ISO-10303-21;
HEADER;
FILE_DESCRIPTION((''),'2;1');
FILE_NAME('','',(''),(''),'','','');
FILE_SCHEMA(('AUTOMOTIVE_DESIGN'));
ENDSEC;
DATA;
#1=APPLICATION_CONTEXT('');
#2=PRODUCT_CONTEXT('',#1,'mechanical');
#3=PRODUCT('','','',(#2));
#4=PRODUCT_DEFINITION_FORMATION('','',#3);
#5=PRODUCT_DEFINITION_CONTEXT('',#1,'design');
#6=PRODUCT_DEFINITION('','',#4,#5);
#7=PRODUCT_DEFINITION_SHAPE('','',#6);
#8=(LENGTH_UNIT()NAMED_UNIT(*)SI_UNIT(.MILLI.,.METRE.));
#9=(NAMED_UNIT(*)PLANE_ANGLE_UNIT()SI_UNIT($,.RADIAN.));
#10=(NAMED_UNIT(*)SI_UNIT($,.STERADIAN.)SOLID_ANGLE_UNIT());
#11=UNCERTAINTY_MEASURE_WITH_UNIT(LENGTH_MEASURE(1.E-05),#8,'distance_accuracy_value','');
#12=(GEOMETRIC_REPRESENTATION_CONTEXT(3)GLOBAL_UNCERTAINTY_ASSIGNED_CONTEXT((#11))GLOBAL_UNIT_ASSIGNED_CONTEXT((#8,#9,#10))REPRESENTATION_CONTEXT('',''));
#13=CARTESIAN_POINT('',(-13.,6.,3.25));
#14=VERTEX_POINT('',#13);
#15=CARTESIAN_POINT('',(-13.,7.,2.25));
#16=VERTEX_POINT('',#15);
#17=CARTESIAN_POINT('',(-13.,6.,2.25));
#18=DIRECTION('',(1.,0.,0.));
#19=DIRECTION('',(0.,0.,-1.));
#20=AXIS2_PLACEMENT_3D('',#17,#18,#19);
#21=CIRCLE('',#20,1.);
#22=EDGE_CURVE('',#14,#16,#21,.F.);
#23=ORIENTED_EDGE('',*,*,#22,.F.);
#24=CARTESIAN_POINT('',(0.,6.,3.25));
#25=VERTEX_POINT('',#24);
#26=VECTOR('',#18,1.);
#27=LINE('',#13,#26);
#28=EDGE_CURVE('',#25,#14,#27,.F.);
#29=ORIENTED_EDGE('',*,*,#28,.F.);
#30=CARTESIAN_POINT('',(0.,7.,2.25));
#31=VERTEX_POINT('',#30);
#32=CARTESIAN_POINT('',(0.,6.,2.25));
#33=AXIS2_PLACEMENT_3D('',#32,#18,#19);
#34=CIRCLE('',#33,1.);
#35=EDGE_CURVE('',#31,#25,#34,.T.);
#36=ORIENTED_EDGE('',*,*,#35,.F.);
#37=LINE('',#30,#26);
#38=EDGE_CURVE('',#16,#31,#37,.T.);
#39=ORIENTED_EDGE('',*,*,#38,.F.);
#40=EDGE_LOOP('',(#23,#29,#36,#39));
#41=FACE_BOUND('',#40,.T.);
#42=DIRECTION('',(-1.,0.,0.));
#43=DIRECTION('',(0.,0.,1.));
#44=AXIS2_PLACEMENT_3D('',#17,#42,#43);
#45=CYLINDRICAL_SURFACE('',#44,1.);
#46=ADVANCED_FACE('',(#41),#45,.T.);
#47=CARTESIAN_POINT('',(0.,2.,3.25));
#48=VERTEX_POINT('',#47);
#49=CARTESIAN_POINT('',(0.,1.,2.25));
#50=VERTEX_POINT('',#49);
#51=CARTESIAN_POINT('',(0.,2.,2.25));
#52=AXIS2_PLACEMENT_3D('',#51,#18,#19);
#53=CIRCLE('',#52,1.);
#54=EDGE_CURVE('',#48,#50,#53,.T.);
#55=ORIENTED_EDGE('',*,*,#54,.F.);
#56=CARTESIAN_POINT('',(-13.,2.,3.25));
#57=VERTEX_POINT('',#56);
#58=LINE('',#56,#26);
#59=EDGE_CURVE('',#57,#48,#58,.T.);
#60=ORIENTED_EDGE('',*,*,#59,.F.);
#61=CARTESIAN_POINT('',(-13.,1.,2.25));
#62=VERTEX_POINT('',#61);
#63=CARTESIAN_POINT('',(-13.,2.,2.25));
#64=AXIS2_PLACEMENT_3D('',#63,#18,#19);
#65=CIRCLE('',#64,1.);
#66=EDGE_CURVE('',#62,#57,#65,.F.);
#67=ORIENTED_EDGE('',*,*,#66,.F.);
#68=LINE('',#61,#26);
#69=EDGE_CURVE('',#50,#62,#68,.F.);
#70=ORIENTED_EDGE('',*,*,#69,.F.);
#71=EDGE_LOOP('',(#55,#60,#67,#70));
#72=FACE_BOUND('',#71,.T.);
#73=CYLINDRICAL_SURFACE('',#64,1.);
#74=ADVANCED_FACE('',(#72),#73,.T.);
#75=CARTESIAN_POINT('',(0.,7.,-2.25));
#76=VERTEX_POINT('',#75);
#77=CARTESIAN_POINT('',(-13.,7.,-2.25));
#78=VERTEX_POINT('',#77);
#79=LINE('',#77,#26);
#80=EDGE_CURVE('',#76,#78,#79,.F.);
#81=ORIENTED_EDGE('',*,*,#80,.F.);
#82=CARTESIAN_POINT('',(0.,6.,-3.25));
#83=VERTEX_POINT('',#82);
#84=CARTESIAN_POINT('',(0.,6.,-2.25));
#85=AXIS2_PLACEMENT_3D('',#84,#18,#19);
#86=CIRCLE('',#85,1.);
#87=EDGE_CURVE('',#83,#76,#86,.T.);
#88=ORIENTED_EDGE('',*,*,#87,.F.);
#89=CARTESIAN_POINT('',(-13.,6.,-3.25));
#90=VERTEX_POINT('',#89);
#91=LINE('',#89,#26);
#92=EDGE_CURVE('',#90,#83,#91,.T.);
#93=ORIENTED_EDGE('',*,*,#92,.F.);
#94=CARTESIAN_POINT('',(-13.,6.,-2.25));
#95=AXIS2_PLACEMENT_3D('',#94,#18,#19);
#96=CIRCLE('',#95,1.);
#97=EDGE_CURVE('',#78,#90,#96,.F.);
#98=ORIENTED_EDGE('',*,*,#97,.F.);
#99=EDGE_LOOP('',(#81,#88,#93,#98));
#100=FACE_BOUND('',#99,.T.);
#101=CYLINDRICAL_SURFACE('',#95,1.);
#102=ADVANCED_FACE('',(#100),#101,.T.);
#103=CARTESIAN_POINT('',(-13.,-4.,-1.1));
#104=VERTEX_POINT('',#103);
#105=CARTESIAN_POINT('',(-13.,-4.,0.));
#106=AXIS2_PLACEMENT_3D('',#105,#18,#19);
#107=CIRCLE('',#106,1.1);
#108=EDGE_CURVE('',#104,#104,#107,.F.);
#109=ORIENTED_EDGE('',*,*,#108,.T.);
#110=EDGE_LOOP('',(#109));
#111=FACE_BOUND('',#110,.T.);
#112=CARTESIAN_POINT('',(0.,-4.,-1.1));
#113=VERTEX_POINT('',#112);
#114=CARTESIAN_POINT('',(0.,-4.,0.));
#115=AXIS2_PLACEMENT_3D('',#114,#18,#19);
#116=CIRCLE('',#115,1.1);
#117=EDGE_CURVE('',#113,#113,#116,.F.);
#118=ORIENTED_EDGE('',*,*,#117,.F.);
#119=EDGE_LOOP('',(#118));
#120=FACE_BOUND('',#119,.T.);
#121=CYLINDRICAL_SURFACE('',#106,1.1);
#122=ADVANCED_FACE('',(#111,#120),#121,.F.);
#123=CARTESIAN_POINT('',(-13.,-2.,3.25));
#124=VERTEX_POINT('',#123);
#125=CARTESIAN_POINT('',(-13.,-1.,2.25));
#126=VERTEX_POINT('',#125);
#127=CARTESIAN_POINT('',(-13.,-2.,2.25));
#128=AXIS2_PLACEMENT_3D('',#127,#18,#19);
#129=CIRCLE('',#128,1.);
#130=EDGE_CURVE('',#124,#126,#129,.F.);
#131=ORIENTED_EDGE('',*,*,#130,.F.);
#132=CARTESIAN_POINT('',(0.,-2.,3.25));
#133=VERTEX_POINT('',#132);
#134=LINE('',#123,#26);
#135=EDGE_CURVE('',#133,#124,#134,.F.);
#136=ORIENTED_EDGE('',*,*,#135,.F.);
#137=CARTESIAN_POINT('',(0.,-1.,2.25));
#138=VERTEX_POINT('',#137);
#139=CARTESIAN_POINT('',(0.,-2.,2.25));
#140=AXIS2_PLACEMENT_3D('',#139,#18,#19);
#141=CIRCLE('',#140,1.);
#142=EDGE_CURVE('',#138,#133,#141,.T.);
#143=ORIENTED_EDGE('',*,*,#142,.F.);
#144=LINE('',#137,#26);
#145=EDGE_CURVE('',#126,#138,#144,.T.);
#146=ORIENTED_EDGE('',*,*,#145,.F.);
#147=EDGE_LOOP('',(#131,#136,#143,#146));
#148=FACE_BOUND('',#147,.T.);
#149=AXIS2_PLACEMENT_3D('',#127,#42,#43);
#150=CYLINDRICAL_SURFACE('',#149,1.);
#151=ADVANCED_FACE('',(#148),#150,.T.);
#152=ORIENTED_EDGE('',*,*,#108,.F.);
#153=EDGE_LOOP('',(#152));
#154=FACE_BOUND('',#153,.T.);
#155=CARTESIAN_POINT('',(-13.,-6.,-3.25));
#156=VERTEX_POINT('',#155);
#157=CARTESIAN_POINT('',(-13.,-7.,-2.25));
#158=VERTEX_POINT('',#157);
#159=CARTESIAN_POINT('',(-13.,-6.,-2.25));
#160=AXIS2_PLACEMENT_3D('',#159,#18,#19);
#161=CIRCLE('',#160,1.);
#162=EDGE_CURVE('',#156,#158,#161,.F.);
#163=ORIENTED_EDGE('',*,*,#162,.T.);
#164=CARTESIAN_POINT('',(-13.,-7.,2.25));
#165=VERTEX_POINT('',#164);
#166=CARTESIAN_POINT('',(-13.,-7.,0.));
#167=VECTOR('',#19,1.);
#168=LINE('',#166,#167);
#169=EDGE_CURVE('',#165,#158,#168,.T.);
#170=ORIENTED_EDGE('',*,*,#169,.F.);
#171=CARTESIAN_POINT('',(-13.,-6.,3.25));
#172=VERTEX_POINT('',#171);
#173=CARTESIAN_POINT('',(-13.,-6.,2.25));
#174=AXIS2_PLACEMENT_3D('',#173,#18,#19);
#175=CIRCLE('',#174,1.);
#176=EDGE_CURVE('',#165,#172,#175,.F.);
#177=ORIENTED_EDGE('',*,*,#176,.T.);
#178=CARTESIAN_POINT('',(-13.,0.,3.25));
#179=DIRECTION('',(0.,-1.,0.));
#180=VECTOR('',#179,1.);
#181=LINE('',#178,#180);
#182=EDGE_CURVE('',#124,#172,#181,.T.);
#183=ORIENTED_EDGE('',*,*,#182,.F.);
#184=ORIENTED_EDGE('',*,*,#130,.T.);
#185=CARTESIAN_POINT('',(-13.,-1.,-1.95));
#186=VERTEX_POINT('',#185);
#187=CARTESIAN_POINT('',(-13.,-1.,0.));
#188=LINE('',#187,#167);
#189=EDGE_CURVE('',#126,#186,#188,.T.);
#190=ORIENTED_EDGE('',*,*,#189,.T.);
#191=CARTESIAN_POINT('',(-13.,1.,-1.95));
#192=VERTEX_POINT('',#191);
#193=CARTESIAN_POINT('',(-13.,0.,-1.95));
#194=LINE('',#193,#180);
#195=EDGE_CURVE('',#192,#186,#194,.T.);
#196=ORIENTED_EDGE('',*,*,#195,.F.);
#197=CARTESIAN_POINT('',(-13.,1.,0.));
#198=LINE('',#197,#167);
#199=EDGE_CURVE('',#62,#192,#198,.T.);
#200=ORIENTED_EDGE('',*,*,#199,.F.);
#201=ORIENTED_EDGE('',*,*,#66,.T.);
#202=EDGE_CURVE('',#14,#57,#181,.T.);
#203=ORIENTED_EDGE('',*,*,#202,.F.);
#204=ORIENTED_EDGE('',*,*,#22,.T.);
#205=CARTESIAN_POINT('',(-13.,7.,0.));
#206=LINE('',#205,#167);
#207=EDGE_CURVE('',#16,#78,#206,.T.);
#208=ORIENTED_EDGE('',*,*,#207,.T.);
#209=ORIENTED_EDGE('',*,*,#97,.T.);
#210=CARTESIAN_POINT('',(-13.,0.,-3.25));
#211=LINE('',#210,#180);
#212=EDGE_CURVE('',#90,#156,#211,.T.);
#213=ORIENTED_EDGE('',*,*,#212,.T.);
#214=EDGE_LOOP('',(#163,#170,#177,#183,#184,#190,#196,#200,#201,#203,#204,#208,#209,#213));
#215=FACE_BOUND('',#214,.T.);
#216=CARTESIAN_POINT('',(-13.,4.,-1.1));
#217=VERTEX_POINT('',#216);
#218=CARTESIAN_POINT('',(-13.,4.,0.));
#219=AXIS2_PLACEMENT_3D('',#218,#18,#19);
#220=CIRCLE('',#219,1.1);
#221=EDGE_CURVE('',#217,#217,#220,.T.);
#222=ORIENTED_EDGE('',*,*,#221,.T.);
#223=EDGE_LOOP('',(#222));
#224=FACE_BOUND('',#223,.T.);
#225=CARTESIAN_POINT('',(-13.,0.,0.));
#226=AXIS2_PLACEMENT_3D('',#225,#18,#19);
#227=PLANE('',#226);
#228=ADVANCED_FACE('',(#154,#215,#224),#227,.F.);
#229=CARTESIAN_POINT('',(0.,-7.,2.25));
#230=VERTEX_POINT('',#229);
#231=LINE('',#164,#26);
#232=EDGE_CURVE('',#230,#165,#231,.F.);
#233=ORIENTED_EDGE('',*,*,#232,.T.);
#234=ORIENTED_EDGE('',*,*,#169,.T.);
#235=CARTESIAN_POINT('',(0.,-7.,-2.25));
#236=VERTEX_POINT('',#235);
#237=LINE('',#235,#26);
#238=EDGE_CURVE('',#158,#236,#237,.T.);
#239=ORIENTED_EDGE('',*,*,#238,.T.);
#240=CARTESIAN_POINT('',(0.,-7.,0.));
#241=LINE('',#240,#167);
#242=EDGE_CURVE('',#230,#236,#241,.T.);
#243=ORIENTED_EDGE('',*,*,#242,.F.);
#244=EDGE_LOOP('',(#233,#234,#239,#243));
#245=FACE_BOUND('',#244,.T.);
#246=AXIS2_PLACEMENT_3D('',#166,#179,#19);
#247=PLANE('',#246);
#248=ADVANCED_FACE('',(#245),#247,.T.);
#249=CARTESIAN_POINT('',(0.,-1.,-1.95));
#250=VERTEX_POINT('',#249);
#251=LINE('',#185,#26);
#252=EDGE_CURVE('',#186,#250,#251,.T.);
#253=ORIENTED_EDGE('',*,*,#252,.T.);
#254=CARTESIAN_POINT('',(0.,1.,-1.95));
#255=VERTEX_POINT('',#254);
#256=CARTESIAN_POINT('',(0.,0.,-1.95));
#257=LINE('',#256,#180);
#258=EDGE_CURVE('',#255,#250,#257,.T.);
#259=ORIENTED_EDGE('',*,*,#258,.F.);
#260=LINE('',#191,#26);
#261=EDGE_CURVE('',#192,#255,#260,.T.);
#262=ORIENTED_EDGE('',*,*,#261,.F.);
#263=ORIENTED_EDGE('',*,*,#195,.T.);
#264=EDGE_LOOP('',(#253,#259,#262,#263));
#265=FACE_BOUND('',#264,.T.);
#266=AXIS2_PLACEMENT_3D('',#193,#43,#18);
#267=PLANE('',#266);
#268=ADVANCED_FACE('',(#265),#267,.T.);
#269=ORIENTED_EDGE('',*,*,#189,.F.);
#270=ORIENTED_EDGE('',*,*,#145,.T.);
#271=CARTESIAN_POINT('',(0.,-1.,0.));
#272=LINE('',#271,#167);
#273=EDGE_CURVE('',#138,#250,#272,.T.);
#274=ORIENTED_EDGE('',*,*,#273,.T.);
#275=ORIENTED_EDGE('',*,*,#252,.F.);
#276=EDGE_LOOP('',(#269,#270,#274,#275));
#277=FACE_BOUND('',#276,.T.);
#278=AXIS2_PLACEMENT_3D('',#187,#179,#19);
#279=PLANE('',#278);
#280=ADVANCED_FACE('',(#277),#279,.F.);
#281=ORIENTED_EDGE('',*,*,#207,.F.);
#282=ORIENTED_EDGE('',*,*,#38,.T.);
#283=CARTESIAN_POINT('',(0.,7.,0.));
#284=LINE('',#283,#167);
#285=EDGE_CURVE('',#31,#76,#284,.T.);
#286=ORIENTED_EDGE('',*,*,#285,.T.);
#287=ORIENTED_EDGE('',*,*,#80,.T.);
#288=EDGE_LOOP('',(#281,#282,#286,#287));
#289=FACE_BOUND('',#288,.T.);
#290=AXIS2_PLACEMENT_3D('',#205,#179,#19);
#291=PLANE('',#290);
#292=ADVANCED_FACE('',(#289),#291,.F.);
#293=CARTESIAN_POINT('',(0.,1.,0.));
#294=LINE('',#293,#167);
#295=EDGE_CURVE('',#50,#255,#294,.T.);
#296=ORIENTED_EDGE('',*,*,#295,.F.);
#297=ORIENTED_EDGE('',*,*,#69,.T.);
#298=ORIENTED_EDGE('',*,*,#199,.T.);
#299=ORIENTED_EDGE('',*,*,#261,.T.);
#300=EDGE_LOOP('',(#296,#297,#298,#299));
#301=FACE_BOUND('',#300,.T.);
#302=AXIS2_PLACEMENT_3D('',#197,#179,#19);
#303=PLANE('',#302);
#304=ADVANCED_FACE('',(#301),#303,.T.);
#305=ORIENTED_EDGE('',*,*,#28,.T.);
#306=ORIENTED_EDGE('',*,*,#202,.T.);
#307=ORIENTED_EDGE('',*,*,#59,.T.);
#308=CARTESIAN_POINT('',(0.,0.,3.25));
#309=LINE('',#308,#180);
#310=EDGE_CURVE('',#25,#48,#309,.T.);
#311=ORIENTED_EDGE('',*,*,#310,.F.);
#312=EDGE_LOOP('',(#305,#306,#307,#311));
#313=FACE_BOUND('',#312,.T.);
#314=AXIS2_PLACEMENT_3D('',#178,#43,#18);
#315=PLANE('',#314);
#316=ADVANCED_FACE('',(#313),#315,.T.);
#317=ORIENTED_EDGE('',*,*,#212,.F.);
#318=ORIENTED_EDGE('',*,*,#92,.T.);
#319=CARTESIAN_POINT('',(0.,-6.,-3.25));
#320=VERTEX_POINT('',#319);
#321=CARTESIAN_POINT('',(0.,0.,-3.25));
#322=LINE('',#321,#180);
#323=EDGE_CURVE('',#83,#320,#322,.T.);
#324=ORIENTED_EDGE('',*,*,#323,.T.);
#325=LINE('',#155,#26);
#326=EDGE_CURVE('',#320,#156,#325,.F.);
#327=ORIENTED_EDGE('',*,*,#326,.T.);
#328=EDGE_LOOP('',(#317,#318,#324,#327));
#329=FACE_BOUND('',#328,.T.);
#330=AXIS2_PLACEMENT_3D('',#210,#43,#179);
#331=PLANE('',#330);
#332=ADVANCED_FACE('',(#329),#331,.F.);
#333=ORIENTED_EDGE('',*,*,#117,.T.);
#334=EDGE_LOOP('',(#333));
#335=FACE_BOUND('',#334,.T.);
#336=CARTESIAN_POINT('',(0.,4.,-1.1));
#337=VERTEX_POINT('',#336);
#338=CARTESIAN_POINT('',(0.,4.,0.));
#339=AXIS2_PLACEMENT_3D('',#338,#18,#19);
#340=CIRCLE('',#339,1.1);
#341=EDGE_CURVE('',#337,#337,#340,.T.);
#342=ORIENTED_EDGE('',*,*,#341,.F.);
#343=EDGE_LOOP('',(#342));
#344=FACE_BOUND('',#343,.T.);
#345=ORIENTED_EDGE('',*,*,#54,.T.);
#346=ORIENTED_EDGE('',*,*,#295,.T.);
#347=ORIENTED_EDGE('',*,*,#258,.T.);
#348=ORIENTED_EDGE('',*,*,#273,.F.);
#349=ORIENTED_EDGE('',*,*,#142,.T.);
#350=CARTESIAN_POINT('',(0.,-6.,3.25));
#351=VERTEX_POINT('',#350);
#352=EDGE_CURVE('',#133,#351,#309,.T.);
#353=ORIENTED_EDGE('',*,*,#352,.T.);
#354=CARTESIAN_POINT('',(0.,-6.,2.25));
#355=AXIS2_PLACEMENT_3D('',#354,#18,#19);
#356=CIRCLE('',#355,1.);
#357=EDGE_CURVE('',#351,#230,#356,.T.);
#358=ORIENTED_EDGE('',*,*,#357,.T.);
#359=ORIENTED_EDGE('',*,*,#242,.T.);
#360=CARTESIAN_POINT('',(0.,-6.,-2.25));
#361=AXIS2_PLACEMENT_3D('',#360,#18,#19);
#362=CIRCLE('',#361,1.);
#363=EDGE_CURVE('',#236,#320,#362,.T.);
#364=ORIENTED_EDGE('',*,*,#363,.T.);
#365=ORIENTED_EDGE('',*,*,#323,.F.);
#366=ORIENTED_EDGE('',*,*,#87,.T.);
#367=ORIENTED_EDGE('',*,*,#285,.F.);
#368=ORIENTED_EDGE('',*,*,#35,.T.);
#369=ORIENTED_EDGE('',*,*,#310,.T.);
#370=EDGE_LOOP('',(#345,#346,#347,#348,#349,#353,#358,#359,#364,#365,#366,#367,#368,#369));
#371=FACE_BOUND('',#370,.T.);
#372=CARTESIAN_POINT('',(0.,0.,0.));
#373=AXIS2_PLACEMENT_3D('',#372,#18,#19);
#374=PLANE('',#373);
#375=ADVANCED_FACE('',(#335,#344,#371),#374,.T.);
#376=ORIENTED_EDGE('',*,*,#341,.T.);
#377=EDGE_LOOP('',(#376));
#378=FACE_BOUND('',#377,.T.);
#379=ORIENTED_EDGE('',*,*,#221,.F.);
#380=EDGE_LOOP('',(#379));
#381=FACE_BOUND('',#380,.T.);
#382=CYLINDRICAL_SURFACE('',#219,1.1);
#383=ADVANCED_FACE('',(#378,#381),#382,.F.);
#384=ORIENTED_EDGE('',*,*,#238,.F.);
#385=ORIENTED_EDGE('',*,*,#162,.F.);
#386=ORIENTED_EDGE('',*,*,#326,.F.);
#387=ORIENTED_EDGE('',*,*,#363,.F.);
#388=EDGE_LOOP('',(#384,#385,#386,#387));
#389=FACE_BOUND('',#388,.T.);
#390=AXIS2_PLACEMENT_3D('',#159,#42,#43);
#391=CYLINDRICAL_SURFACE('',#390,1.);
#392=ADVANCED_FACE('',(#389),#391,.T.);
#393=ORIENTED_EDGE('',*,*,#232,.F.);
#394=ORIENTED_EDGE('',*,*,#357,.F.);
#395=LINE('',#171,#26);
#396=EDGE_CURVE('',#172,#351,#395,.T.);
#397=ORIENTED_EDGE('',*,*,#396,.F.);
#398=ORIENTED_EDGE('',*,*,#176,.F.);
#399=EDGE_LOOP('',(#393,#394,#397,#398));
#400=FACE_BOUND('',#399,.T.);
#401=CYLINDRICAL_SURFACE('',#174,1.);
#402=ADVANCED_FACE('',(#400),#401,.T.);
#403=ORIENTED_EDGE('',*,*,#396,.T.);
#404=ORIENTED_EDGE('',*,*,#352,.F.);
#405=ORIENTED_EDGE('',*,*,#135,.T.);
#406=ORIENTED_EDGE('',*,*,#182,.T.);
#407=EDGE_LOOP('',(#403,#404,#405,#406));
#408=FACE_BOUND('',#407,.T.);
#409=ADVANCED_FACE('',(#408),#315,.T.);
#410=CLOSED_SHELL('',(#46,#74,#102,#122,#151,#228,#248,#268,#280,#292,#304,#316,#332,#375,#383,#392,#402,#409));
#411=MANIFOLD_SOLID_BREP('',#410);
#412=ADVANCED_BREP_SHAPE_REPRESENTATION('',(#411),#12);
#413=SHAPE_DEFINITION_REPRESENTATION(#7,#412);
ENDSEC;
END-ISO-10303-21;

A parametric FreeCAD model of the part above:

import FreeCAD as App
import Part
import Sketcher

V = App.Vector


def edges_at(feature, points):
    """Names of the edges that pass closest to the given points."""
    edges = feature.Shape.Edges
    near = lambda p: min(range(len(edges)), key=lambda i: edges[i].distToShape(Part.Vertex(*p))[0])
    return sorted({f"Edge{near(p) + 1}" for p in points})


def add_polygon(sketch, points):
    """Adds a closed chain of lines whose ends are joined by coincident constraints."""
    first, n = sketch.GeometryCount, len(points)
    for a, b in zip(points, points[1:] + points[:1]):
        sketch.addGeometry(Part.LineSegment(App.Vector(*a, 0), App.Vector(*b, 0)), False)
    for i in range(n):
        sketch.addConstraint(Sketcher.Constraint("Coincident", first + i, 2, first + (i + 1) % n, 1))

doc = App.newDocument("Part")
body = doc.addObject("PartDesign::Body", "Body")

sketch1 = body.newObject("Sketcher::SketchObject", "Sketch")
sketch1.AttachmentSupport = (doc.getObject("YZ_Plane"), [""])
sketch1.MapMode = "FlatFace"
add_polygon(sketch1, [(7, -3.2), (7, 3.2), (1, 3.2), (1, -1.9), (-1, -1.9), (-1, 3.2), (-7, 3.2), (-7, -3.2)])
sketch1.addGeometry(Part.Circle(V(-4, 0, 0), V(0, 0, 1), 1.1), False)
sketch1.addGeometry(Part.Circle(V(4, 0, 0), V(0, 0, 1), 1.1), False)
sketch1.addConstraint(Sketcher.Constraint("Vertical", 0))
sketch1.addConstraint(Sketcher.Constraint("Horizontal", 1))
sketch1.addConstraint(Sketcher.Constraint("Vertical", 2))
sketch1.addConstraint(Sketcher.Constraint("Horizontal", 3))
sketch1.addConstraint(Sketcher.Constraint("Vertical", 4))
sketch1.addConstraint(Sketcher.Constraint("Horizontal", 5))
sketch1.addConstraint(Sketcher.Constraint("Vertical", 6))
sketch1.addConstraint(Sketcher.Constraint("Horizontal", 7))
sketch1.addConstraint(Sketcher.Constraint("Equal", 8, 9))
sketch1.addConstraint(Sketcher.Constraint("Symmetric", 8, 3, 9, 3, -1, 1))
sketch1.addConstraint(Sketcher.Constraint("Symmetric", 0, 2, 6, 2, -1, 1))
sketch1.addConstraint(Sketcher.Constraint("Symmetric", 1, 2, 4, 2, -2))
sketch1.addConstraint(Sketcher.Constraint("PointOnObject", 8, 3, -1))
sketch1.addConstraint(Sketcher.Constraint("Diameter", 8, 2.2))
sketch1.addConstraint(Sketcher.Constraint("DistanceX", 1, 2, 1, 1, 6.0))
sketch1.addConstraint(Sketcher.Constraint("DistanceX", 3, 2, 3, 1, 2.0))
sketch1.addConstraint(Sketcher.Constraint("DistanceY", 0, 1, 0, 2, 6.5))
sketch1.addConstraint(Sketcher.Constraint("DistanceY", 2, 2, 2, 1, 5.2))
sketch1.addConstraint(Sketcher.Constraint("DistanceX", 8, 3, -1, 1, 4.0))
pad1 = body.newObject("PartDesign::Pad", "Pad")
pad1.Profile = sketch1
pad1.Length = 13
pad1.Reversed = True
doc.recompute()

fillet = body.newObject("PartDesign::Fillet", "Fillet")
fillet.Base = (pad1, edges_at(pad1, [
    (-6.5, 1, 3.25),
    (-6.5, 7, 3.25),
    (-6.5, 7, -3.25),
    (-6.5, -7, -3.25),
    (-6.5, -7, 3.25),
    (-6.5, -1, 3.25),
]))
fillet.Radius = 1

doc.recompute()
